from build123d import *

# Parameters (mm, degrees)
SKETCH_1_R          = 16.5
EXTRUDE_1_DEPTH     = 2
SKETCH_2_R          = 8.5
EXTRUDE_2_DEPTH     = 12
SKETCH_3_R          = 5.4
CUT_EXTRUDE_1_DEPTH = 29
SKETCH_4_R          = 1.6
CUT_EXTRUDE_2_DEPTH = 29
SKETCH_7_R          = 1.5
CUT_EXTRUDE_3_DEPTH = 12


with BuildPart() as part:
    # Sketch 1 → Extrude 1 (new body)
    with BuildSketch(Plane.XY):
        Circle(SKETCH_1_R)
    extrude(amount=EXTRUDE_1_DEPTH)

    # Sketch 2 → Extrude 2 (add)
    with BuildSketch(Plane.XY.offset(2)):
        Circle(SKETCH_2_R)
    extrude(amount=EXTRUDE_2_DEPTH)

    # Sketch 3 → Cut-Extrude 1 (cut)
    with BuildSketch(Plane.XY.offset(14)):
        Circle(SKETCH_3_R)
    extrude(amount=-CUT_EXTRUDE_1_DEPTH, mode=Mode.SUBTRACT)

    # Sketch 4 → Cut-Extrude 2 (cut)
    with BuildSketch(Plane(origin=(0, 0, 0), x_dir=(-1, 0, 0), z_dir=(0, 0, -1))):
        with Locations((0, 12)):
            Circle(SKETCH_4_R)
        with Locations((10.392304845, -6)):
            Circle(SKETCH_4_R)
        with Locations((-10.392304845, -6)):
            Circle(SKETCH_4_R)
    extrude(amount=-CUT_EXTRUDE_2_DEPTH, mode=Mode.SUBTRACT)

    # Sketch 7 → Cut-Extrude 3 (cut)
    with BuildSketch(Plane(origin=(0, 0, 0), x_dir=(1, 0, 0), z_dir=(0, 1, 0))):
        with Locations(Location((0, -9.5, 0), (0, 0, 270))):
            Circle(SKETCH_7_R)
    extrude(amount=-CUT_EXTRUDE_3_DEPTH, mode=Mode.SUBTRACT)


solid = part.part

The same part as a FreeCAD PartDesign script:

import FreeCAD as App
import Part
import Sketcher

doc = App.newDocument("Part")
body = doc.addObject("PartDesign::Body", "Body")

sketch1 = doc.addObject("Sketcher::SketchObject", "Sketch")
body.addObject(sketch1)
sketch1.AttachmentSupport = (doc.XY_Plane, [""])
sketch1.MapMode = "FlatFace"
sketch1.addGeometry(Part.Circle(App.Vector(0, 0, 0), App.Vector(0, 0, 1), 16), False)
sketch1.addConstraint([
    Sketcher.Constraint("Coincident", 0, 3, -1, 1),
    Sketcher.Constraint("Diameter", 0, 33.0),
])
pad1 = doc.addObject("PartDesign::Pad", "Pad")
body.addObject(pad1)
pad1.Profile = sketch1
pad1.Length = 2

sketch2 = doc.addObject("Sketcher::SketchObject", "Sketch001")
body.addObject(sketch2)
sketch2.AttachmentSupport = (doc.XY_Plane, [""])
sketch2.MapMode = "FlatFace"
sketch2.AttachmentOffset = App.Placement(App.Vector(0, 0, 2), App.Rotation())
sketch2.addGeometry(Part.Circle(App.Vector(0, 0, 0), App.Vector(0, 0, 1), 8), False)
sketch2.addConstraint([
    Sketcher.Constraint("Coincident", 0, 3, -1, 1),
    Sketcher.Constraint("Diameter", 0, 17.0),
])
pad2 = doc.addObject("PartDesign::Pad", "Pad001")
body.addObject(pad2)
pad2.Profile = sketch2
pad2.Length = 12

sketch3 = doc.addObject("Sketcher::SketchObject", "Sketch002")
body.addObject(sketch3)
sketch3.AttachmentSupport = (doc.XY_Plane, [""])
sketch3.MapMode = "FlatFace"
sketch3.AttachmentOffset = App.Placement(App.Vector(0, 0, 14), App.Rotation())
sketch3.addGeometry(Part.Circle(App.Vector(0, 0, 0), App.Vector(0, 0, 1), 5), False)
sketch3.addConstraint([
    Sketcher.Constraint("Coincident", 0, 3, -1, 1),
    Sketcher.Constraint("Diameter", 0, 10.8),
])
pocket1 = doc.addObject("PartDesign::Pocket", "Pocket")
body.addObject(pocket1)
pocket1.Profile = sketch3
pocket1.Length = 29

sketch4 = doc.addObject("Sketcher::SketchObject", "Sketch003")
body.addObject(sketch4)
sketch4.AttachmentSupport = (doc.XY_Plane, [""])
sketch4.MapMode = "FlatFace"
sketch4.addGeometry([
    Part.Circle(App.Vector(0, 12, 0), App.Vector(0, 0, 1), 1.6),
    Part.Circle(App.Vector(-10.4, -6, 0), App.Vector(0, 0, 1), 1.6),
    Part.Circle(App.Vector(10.4, -6, 0), App.Vector(0, 0, 1), 1.6),
], False)
sketch4.addConstraint([
    Sketcher.Constraint("Equal", 0, 1),
    Sketcher.Constraint("Equal", 1, 2),
    Sketcher.Constraint("Symmetric", 1, 3, 2, 3, -2),
    Sketcher.Constraint("PointOnObject", 0, 3, -2),
    Sketcher.Constraint("Diameter", 0, 3.2),
    Sketcher.Constraint("DistanceY", -1, 1, 0, 3, 12.0),
    Sketcher.Constraint("DistanceY", 1, 3, -1, 1, 6.0),
    Sketcher.Constraint("DistanceX", 1, 3, 2, 3, 20.78461),
])
pocket2 = doc.addObject("PartDesign::Pocket", "Pocket001")
body.addObject(pocket2)
pocket2.Profile = sketch4
pocket2.Length = 29
pocket2.Reversed = True

sketch5 = doc.addObject("Sketcher::SketchObject", "Sketch004")
body.addObject(sketch5)
sketch5.AttachmentSupport = (doc.XZ_Plane, [""])
sketch5.MapMode = "FlatFace"
sketch5.addGeometry(Part.Circle(App.Vector(0, 9.5, 0), App.Vector(0, 0, 1), 1.5), False)
sketch5.addConstraint([
    Sketcher.Constraint("PointOnObject", 0, 3, -2),
    Sketcher.Constraint("Diameter", 0, 3.0),
    Sketcher.Constraint("DistanceY", -1, 1, 0, 3, 9.5),
])
pocket3 = doc.addObject("PartDesign::Pocket", "Pocket002")
body.addObject(pocket3)
pocket3.Profile = sketch5
pocket3.Length = 12
pocket3.Reversed = True

doc.recompute()
